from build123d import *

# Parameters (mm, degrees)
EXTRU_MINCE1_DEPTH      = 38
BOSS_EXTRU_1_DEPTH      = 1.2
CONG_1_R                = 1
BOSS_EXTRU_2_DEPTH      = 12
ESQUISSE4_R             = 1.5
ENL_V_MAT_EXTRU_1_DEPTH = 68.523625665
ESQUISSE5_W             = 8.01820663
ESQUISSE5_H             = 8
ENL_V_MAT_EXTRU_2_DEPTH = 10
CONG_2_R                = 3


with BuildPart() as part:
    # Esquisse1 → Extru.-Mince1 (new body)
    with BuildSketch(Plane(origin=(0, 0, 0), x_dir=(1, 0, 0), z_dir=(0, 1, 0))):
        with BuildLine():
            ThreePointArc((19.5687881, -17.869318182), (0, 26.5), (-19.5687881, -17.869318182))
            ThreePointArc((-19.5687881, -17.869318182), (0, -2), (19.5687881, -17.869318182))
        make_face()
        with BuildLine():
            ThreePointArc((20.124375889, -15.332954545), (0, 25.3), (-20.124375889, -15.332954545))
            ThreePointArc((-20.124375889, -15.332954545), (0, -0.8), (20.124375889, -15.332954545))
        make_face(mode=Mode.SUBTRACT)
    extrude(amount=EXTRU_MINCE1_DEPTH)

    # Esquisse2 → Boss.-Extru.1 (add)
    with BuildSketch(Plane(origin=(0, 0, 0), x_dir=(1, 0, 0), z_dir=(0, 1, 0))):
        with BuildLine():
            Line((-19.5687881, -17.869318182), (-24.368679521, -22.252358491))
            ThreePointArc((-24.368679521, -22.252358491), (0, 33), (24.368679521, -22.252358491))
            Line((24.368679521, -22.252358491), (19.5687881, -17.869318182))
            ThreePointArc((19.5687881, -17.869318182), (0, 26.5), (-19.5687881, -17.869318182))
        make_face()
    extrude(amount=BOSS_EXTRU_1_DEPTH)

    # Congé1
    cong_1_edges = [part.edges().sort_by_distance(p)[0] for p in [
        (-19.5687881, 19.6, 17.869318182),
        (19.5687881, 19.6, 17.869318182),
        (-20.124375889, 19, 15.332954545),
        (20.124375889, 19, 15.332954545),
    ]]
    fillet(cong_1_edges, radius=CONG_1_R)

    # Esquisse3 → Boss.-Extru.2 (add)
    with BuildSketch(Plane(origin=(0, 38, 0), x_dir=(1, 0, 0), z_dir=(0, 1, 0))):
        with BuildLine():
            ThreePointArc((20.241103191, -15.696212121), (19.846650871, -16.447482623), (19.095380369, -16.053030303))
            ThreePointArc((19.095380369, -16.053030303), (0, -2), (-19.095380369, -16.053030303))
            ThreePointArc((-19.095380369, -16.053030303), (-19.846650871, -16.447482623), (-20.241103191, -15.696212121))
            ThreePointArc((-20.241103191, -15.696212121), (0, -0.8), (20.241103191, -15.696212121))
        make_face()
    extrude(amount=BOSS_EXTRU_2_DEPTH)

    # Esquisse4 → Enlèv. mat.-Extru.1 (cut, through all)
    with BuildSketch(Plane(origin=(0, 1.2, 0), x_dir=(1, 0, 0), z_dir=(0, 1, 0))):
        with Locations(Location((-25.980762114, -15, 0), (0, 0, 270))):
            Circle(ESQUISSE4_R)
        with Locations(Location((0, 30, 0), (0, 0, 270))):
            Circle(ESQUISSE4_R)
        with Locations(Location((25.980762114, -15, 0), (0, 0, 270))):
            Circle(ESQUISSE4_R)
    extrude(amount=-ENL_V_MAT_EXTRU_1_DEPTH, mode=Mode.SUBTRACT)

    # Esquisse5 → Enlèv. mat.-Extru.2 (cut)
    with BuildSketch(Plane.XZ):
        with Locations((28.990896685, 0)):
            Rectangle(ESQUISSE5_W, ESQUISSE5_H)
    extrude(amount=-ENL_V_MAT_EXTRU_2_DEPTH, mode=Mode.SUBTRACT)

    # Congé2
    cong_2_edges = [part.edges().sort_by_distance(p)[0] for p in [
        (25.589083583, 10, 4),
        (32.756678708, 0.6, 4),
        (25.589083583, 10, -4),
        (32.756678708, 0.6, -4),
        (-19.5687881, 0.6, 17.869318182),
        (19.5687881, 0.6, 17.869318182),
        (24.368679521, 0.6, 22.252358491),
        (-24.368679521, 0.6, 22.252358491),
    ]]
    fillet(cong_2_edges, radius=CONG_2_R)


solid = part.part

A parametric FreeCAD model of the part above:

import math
import FreeCAD as App
import Part
import Sketcher

V = App.Vector
Q = App.Units.Quantity


def edges_at(feature, points):
    """Names of the edges that pass closest to the given points."""
    edges = feature.Shape.Edges
    near = lambda p: min(range(len(edges)), key=lambda i: edges[i].distToShape(Part.Vertex(*p))[0])
    return sorted({f"Edge{near(p) + 1}" for p in points})


def add_polygon(sketch, points):
    """Adds a closed chain of lines whose ends are joined by coincident constraints."""
    first, n = sketch.GeometryCount, len(points)
    for a, b in zip(points, points[1:] + points[:1]):
        sketch.addGeometry(Part.LineSegment(App.Vector(*a, 0), App.Vector(*b, 0)), False)
    for i in range(n):
        sketch.addConstraint(Sketcher.Constraint("Coincident", first + i, 2, first + (i + 1) % n, 1))

doc = App.newDocument("Part")
params = doc.addObject("Spreadsheet::Sheet", "Params")
for row, (alias, value) in enumerate([
    ("sketch1_radius", "20 mm"),
    ("sketch1_radius2", "26.5 mm"),
    ("sketch1_radius3", "25.3 mm"),
    ("sketch1_radius4", "21.2 mm"),
    ("pad1_length", "38 mm"),
    ("sketch2_radius", "33 mm"),
    ("sketch2_radius2", "26.5 mm"),
    ("pad2_length", "1.2 mm"),
    ("fillet_radius", "1 mm"),
    ("sketch3_radius", "20 mm"),
    ("sketch3_radius2", "0.6 mm"),
    ("pad3_length", "12 mm"),
    ("sketch4_diameter", "3 mm"),
    ("sketch5_height", "8 mm"),
    ("pocket2_length", "10 mm"),
    ("fillet2_radius", "3 mm"),
], start=1):
    params.set(f"A{row}", alias)
    params.set(f"B{row}", "=" + value)
    params.setAlias(f"B{row}", alias)

body = doc.addObject("PartDesign::Body", "Body")

# Sketch on XZ plane
sketch1 = doc.addObject("Sketcher::SketchObject", "Sketch")
body.addObject(sketch1)
sketch1.AttachmentSupport = (doc.XZ_Plane, [""])
sketch1.MapMode = "FlatFace"
sketch1.addGeometry([
    Part.ArcOfCircle(Part.Circle(V(0, 0, 0), V(0, 0, 1), 26), math.radians(138), math.radians(402)),
    Part.ArcOfCircle(Part.Circle(V(0, 22, 0), V(0, 0, 1), 20), math.radians(-168), math.radians(-12)),
    Part.ArcOfCircle(Part.Circle(V(0, 0, 0), V(0, 0, 1), 25), math.radians(143), math.radians(397)),
    Part.ArcOfCircle(Part.Circle(V(0, 22, 0), V(0, 0, 1), 21), math.radians(-162), math.radians(-18)),
], False)
sketch1.addConstraint([
    Sketcher.Constraint("Coincident", 0, 1, 1, 1),
    Sketcher.Constraint("Coincident", 1, 2, 0, 2),
    Sketcher.Constraint("Coincident", 2, 1, 3, 1),
    Sketcher.Constraint("Coincident", 3, 2, 2, 2),
    Sketcher.Constraint("Coincident", 0, 3, -1, 1),
    Sketcher.Constraint("Coincident", 2, 3, -1, 1),
    Sketcher.Constraint("Coincident", 3, 3, 1, 3),
    Sketcher.Constraint("PointOnObject", 1, 3, -2),
    Sketcher.Constraint("Radius", 1, Q("20 mm")),
    Sketcher.Constraint("Radius", 0, Q("26.5 mm")),
    Sketcher.Constraint("Radius", 2, Q("25.3 mm")),
    Sketcher.Constraint("Radius", 3, Q("21.2 mm")),
    Sketcher.Constraint("DistanceY", -1, 1, 1, 3, Q("22 mm")),
])
sketch1.setExpression("Constraints[8]", "Params.sketch1_radius")
sketch1.setExpression("Constraints[9]", "Params.sketch1_radius2")
sketch1.setExpression("Constraints[10]", "Params.sketch1_radius3")
sketch1.setExpression("Constraints[11]", "Params.sketch1_radius4")
pad1 = doc.addObject("PartDesign::Pad", "Pad")
body.addObject(pad1)
pad1.Profile = sketch1
pad1.setExpression("Length", "Params.pad1_length")
pad1.Reversed = True

# Sketch on XZ plane
sketch2 = doc.addObject("Sketcher::SketchObject", "Sketch001")
body.addObject(sketch2)
sketch2.AttachmentSupport = (doc.XZ_Plane, [""])
sketch2.MapMode = "FlatFace"
sketch2.addGeometry([
    Part.LineSegment(V(-24, 22, 0), V(-20, 18, 0)),
    Part.ArcOfCircle(Part.Circle(V(0, 0, 0), V(0, 0, 1), 26), math.radians(138), math.radians(402)),
    Part.LineSegment(V(20, 18, 0), V(24, 22, 0)),
    Part.ArcOfCircle(Part.Circle(V(0, 0, 0), V(0, 0, 1), 33), math.radians(138), math.radians(402)),
], False)
sketch2.addConstraint([
    Sketcher.Constraint("Coincident", 0, 2, 1, 1),
    Sketcher.Constraint("Coincident", 1, 2, 2, 1),
    Sketcher.Constraint("Coincident", 2, 2, 3, 2),
    Sketcher.Constraint("Coincident", 3, 1, 0, 1),
    Sketcher.Constraint("Coincident", 1, 3, -1, 1),
    Sketcher.Constraint("Coincident", 3, 3, -1, 1),
    Sketcher.Constraint("Horizontal", 0, 2, 1, 2),
    Sketcher.Constraint("Horizontal", 2, 2, 3, 1),
    Sketcher.Constraint("Radius", 3, Q("33 mm")),
    Sketcher.Constraint("Radius", 1, Q("26.5 mm")),
    Sketcher.Constraint("DistanceX", 0, 2, -1, 1, Q("19.568788 mm")),
    Sketcher.Constraint("DistanceX", -1, 1, 2, 2, Q("24.36868 mm")),
])
sketch2.setExpression("Constraints[8]", "Params.sketch2_radius")
sketch2.setExpression("Constraints[9]", "Params.sketch2_radius2")
pad2 = doc.addObject("PartDesign::Pad", "Pad001")
body.addObject(pad2)
pad2.Profile = sketch2
pad2.setExpression("Length", "Params.pad2_length")
pad2.Reversed = True
doc.recompute()

fillet = doc.addObject("PartDesign::Fillet", "Fillet")
body.addObject(fillet)
fillet.Base = (pad2, edges_at(pad2, [
    (-19.569, 19.6, 17.869),
    (19.569, 19.6, 17.869),
    (-20.124, 19, 15.333),
    (20.124, 19, 15.333),
]))
fillet.setExpression("Radius", "Params.fillet_radius")

# Sketch on XZ plane
sketch3 = doc.addObject("Sketcher::SketchObject", "Sketch002")
body.addObject(sketch3)
sketch3.AttachmentSupport = (doc.XZ_Plane, [""])
sketch3.MapMode = "FlatFace"
sketch3.AttachmentOffset = App.Placement(V(0, 0, -38), App.Rotation())
sketch3.addGeometry([
    Part.ArcOfCircle(Part.Circle(V(19.7, 15.9, 0), V(0, 0, 1), 0.6), math.radians(-17), math.radians(163)),
    Part.ArcOfCircle(Part.Circle(V(0, 22, 0), V(0, 0, 1), 21.2), math.radians(-163), math.radians(-17)),
    Part.ArcOfCircle(Part.Circle(V(-19.7, 15.9, 0), V(0, 0, 1), 0.6), math.radians(17), math.radians(197)),
    Part.ArcOfCircle(Part.Circle(V(0, 22, 0), V(0, 0, 1), 20), math.radians(-163), math.radians(-17)),
], False)
sketch3.addConstraint([
    Sketcher.Constraint("Tangent", 0, 1, 1, 2),
    Sketcher.Constraint("Tangent", 1, 1, 2, 2),
    Sketcher.Constraint("Tangent", 2, 1, 3, 1),
    Sketcher.Constraint("Tangent", 3, 2, 0, 2),
    Sketcher.Constraint("Coincident", 3, 3, 1, 3),
    Sketcher.Constraint("Symmetric", 0, 3, 2, 3, -2),
    Sketcher.Constraint("Radius", 3, Q("20 mm")),
    Sketcher.Constraint("Radius", 0, Q("0.6 mm")),
    Sketcher.Constraint("DistanceY", -1, 1, 1, 3, Q("22 mm")),
    Sketcher.Constraint("DistanceX", -1, 1, 0, 3, Q("19.668242 mm")),
])
sketch3.setExpression("Constraints[6]", "Params.sketch3_radius")
sketch3.setExpression("Constraints[7]", "Params.sketch3_radius2")
pad3 = doc.addObject("PartDesign::Pad", "Pad002")
body.addObject(pad3)
pad3.Profile = sketch3
pad3.setExpression("Length", "Params.pad3_length")
pad3.Reversed = True

# Sketch on XZ plane
sketch4 = doc.addObject("Sketcher::SketchObject", "Sketch003")
body.addObject(sketch4)
sketch4.AttachmentSupport = (doc.XZ_Plane, [""])
sketch4.MapMode = "FlatFace"
sketch4.AttachmentOffset = App.Placement(V(0, 0, -1.2), App.Rotation())
sketch4.addGeometry([
    Part.Circle(V(-26, 15, 0), V(0, 0, 1), 1.5),
    Part.Circle(V(0, -30, 0), V(0, 0, 1), 1.5),
    Part.Circle(V(26, 15, 0), V(0, 0, 1), 1.5),
], False)
sketch4.addConstraint([
    Sketcher.Constraint("Equal", 0, 1),
    Sketcher.Constraint("Equal", 1, 2),
    Sketcher.Constraint("Symmetric", 0, 3, 2, 3, -2),
    Sketcher.Constraint("PointOnObject", 1, 3, -2),
    Sketcher.Constraint("Diameter", 0, Q("3 mm")),
    Sketcher.Constraint("DistanceY", -1, 1, 0, 3, Q("15 mm")),
    Sketcher.Constraint("DistanceY", 1, 3, -1, 1, Q("30 mm")),
    Sketcher.Constraint("DistanceX", 0, 3, -1, 1, Q("25.980762 mm")),
])
sketch4.setExpression("Constraints[4]", "Params.sketch4_diameter")
pocket1 = doc.addObject("PartDesign::Pocket", "Pocket")
body.addObject(pocket1)
pocket1.Profile = sketch4
pocket1.Type = "ThroughAll"
pocket1.Reversed = True

# Sketch on XZ plane
sketch5 = doc.addObject("Sketcher::SketchObject", "Sketch004")
body.addObject(sketch5)
sketch5.AttachmentSupport = (doc.XZ_Plane, [""])
sketch5.MapMode = "FlatFace"
add_polygon(sketch5, [(25, 4), (25, -4), (33, -4), (33, 4)])  # lines 0-3
sketch5.addConstraint([
    Sketcher.Constraint("Vertical", 0),
    Sketcher.Constraint("Horizontal", 1),
    Sketcher.Constraint("Vertical", 2),
    Sketcher.Constraint("Horizontal", 3),
    Sketcher.Constraint("DistanceY", 0, 2, 0, 1, Q("8 mm")),
    Sketcher.Constraint("DistanceY", 0, 2, -1, 1, Q("4 mm")),
    Sketcher.Constraint("DistanceX", -1, 1, 1, 2, Q("33 mm")),
    Sketcher.Constraint("DistanceX", 1, 1, 1, 2, Q("8.018207 mm")),
])
sketch5.setExpression("Constraints[8]", "Params.sketch5_height")
pocket2 = doc.addObject("PartDesign::Pocket", "Pocket001")
body.addObject(pocket2)
pocket2.Profile = sketch5
pocket2.setExpression("Length", "Params.pocket2_length")
doc.recompute()

fillet2 = doc.addObject("PartDesign::Fillet", "Fillet001")
body.addObject(fillet2)
fillet2.Base = (pocket2, edges_at(pocket2, [
    (25.589, 10, 4),
    (32.757, 0.6, 4),
    (25.589, 10, -4),
    (32.757, 0.6, -4),
    (-19.569, 0.6, 17.869),
    (19.569, 0.6, 17.869),
    (24.369, 0.6, 22.252),
    (-24.369, 0.6, 22.252),
]))
fillet2.setExpression("Radius", "Params.fillet2_radius")

doc.recompute()
